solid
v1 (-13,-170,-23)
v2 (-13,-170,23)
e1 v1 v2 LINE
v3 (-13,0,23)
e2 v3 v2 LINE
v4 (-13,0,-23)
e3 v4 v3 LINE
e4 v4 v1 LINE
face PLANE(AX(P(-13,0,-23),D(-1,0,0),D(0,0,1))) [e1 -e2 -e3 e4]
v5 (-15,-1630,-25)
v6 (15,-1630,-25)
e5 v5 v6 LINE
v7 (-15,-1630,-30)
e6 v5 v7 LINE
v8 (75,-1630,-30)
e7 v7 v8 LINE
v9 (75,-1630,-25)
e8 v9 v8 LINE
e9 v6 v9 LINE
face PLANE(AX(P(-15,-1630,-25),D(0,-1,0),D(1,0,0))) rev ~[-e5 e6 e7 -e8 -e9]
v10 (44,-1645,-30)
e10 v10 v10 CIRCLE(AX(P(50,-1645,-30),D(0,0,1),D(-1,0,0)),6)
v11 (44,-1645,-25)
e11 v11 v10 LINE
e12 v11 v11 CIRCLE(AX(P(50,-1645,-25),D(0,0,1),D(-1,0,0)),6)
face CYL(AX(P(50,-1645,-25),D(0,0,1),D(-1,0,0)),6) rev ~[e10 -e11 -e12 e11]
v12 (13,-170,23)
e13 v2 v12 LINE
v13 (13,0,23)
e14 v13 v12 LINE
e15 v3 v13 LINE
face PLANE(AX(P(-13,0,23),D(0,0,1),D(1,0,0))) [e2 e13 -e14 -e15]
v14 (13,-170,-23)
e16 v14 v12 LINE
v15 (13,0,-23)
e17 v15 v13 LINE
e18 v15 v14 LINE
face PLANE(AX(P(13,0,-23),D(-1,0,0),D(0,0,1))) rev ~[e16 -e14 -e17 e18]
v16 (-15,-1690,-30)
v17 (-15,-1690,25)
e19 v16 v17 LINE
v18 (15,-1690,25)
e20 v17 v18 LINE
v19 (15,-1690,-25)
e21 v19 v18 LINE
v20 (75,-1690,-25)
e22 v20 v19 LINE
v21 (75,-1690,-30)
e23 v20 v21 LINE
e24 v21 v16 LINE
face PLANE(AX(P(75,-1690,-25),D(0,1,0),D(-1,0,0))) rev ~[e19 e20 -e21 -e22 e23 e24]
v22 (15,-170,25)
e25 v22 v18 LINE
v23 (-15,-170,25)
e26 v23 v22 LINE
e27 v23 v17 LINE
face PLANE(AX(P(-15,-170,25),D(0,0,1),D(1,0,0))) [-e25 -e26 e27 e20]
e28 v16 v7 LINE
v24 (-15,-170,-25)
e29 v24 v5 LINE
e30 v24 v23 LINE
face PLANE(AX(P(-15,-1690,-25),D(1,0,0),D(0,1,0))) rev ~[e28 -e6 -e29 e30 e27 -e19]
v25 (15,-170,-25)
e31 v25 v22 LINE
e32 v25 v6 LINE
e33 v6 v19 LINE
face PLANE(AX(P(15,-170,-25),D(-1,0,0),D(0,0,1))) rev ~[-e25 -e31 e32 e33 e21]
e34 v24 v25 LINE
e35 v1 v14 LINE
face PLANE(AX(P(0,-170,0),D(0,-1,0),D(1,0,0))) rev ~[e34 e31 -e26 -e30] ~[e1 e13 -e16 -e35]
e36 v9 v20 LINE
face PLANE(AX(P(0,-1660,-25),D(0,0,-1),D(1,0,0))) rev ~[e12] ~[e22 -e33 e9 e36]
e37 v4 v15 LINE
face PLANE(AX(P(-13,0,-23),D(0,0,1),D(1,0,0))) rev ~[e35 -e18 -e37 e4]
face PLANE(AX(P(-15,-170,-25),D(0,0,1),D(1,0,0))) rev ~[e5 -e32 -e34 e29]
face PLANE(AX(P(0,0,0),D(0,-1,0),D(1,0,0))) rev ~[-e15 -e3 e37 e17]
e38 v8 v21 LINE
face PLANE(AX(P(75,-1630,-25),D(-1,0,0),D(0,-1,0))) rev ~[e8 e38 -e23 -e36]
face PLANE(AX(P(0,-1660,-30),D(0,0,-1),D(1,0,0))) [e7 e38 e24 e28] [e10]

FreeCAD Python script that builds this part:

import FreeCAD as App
import Part
import Sketcher
Q = App.Units.Quantity

doc = App.newDocument("Part")
body = doc.addObject("PartDesign::Body", "Body")

# Sketch on XZ plane
sketch1 = body.newObject("Sketcher::SketchObject", "Sketch")
sketch1.AttachmentSupport = (doc.getObject("XZ_Plane"), [""])
sketch1.MapMode = "FlatFace"
sketch1.addGeometry([
    Part.LineSegment(App.Vector(-13, 23, 0), App.Vector(-13, -23, 0)),
    Part.LineSegment(App.Vector(-13, -23, 0), App.Vector(13, -23, 0)),
    Part.LineSegment(App.Vector(13, -23, 0), App.Vector(13, 23, 0)),
    Part.LineSegment(App.Vector(13, 23, 0), App.Vector(-13, 23, 0)),
], False)
sketch1.addConstraint([
    Sketcher.Constraint("Coincident", 0, 2, 1, 1),
    Sketcher.Constraint("Coincident", 1, 2, 2, 1),
    Sketcher.Constraint("Coincident", 2, 2, 3, 1),
    Sketcher.Constraint("Coincident", 3, 2, 0, 1),
    Sketcher.Constraint("Vertical", 0),
    Sketcher.Constraint("Horizontal", 1),
    Sketcher.Constraint("Vertical", 2),
    Sketcher.Constraint("Horizontal", 3),
    Sketcher.Constraint("Symmetric", 0, 2, 2, 2, -1, 1),
    Sketcher.Constraint("DistanceX", 1, 1, 1, 2, Q("26 mm")),
    Sketcher.Constraint("DistanceY", 0, 2, 0, 1, Q("46 mm")),
])
pad1 = body.newObject("PartDesign::Pad", "Pad")
pad1.Profile = sketch1
pad1.Length = 170

# Sketch on XZ plane
sketch2 = body.newObject("Sketcher::SketchObject", "Sketch001")
sketch2.AttachmentSupport = (doc.getObject("XZ_Plane"), [""])
sketch2.MapMode = "FlatFace"
sketch2.AttachmentOffset = App.Placement(App.Vector(0, 0, 170), App.Rotation())
sketch2.addGeometry([
    Part.LineSegment(App.Vector(-15, 25, 0), App.Vector(-15, -25, 0)),
    Part.LineSegment(App.Vector(-15, -25, 0), App.Vector(15, -25, 0)),
    Part.LineSegment(App.Vector(15, -25, 0), App.Vector(15, 25, 0)),
    Part.LineSegment(App.Vector(15, 25, 0), App.Vector(-15, 25, 0)),
], False)
sketch2.addConstraint([
    Sketcher.Constraint("Coincident", 0, 2, 1, 1),
    Sketcher.Constraint("Coincident", 1, 2, 2, 1),
    Sketcher.Constraint("Coincident", 2, 2, 3, 1),
    Sketcher.Constraint("Coincident", 3, 2, 0, 1),
    Sketcher.Constraint("Vertical", 0),
    Sketcher.Constraint("Horizontal", 1),
    Sketcher.Constraint("Vertical", 2),
    Sketcher.Constraint("Horizontal", 3),
    Sketcher.Constraint("Symmetric", 0, 2, 2, 2, -1, 1),
    Sketcher.Constraint("DistanceX", 1, 1, 1, 2, Q("30 mm")),
    Sketcher.Constraint("DistanceY", 0, 2, 0, 1, Q("50 mm")),
])
pad2 = body.newObject("PartDesign::Pad", "Pad001")
pad2.Profile = sketch2
pad2.Length = 1520

# Sketch on XY plane
sketch3 = body.newObject("Sketcher::SketchObject", "Sketch002")
sketch3.AttachmentSupport = (doc.getObject("XY_Plane"), [""])
sketch3.MapMode = "FlatFace"
sketch3.AttachmentOffset = App.Placement(App.Vector(0, 0, -25), App.Rotation())
sketch3.addGeometry([
    Part.LineSegment(App.Vector(-15, -1690, 0), App.Vector(-15, -1630, 0)),  # 0
    Part.LineSegment(App.Vector(-15, -1630, 0), App.Vector(75, -1630, 0)),  # 1
    Part.LineSegment(App.Vector(75, -1630, 0), App.Vector(75, -1690, 0)),  # 2
    Part.LineSegment(App.Vector(75, -1690, 0), App.Vector(-15, -1690, 0)),  # 3
    Part.Circle(App.Vector(50, -1645, 0), App.Vector(0, 0, 1), 6),  # 4
], False)
sketch3.addConstraint([
    Sketcher.Constraint("Coincident", 0, 2, 1, 1),
    Sketcher.Constraint("Coincident", 1, 2, 2, 1),
    Sketcher.Constraint("Coincident", 2, 2, 3, 1),
    Sketcher.Constraint("Coincident", 3, 2, 0, 1),
    Sketcher.Constraint("Vertical", 0),
    Sketcher.Constraint("Horizontal", 1),
    Sketcher.Constraint("Vertical", 2),
    Sketcher.Constraint("Horizontal", 3),
    Sketcher.Constraint("Diameter", 4, Q("12 mm")),
    Sketcher.Constraint("DistanceX", 1, 1, 1, 2, Q("90 mm")),
    Sketcher.Constraint("DistanceY", 0, 1, 0, 2, Q("60 mm")),
    Sketcher.Constraint("DistanceX", -1, 1, 4, 3, Q("50 mm")),
    Sketcher.Constraint("DistanceY", 4, 3, -1, 1, Q("1645 mm")),
    Sketcher.Constraint("DistanceX", 0, 2, -1, 1, Q("15 mm")),
    Sketcher.Constraint("DistanceY", 0, 2, -1, 1, Q("1630 mm")),
])
pad3 = body.newObject("PartDesign::Pad", "Pad002")
pad3.Profile = sketch3
pad3.Length = 5
pad3.Reversed = True

doc.recompute()
